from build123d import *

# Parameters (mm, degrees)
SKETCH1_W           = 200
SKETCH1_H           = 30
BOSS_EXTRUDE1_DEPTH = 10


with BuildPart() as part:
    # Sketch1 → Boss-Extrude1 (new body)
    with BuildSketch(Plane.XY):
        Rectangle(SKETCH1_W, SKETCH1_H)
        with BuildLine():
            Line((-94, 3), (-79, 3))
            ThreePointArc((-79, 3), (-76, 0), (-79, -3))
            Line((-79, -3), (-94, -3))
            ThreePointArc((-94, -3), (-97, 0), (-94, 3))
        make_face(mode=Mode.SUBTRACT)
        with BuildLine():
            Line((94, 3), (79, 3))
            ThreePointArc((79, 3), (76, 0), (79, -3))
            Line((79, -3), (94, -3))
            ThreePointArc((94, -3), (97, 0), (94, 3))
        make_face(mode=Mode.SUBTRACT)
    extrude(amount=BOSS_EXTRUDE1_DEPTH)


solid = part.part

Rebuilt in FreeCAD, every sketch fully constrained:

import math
import FreeCAD as App
import Part
import Sketcher
from FreeCAD import Vector
Q = App.Units.Quantity

doc = App.newDocument("Part")
body = doc.addObject("PartDesign::Body", "Body")

sketch1 = doc.addObject("Sketcher::SketchObject", "Sketch")
body.addObject(sketch1)
sketch1.AttachmentSupport = (doc.XY_Plane, [""])
sketch1.MapMode = "FlatFace"
sketch1.addGeometry(Part.LineSegment(Vector(-100, 15, 0), Vector(-100, -15, 0)), False)
sketch1.addGeometry(Part.LineSegment(Vector(-100, -15, 0), Vector(100, -15, 0)), False)
sketch1.addGeometry(Part.LineSegment(Vector(100, -15, 0), Vector(100, 15, 0)), False)
sketch1.addGeometry(Part.LineSegment(Vector(100, 15, 0), Vector(-100, 15, 0)), False)
sketch1.addGeometry(Part.ArcOfCircle(Part.Circle(Vector(-94, 0, 0), Vector(0, 0, 1), 3), math.radians(90), math.radians(270)), False)
sketch1.addGeometry(Part.LineSegment(Vector(-94, 3, 0), Vector(-79, 3, 0)), False)
sketch1.addGeometry(Part.ArcOfCircle(Part.Circle(Vector(-79, 0, 0), Vector(0, 0, 1), 3), math.radians(-90), math.radians(90)), False)
sketch1.addGeometry(Part.LineSegment(Vector(-79, -3, 0), Vector(-94, -3, 0)), False)
sketch1.addGeometry(Part.LineSegment(Vector(79, 3, 0), Vector(94, 3, 0)), False)
sketch1.addGeometry(Part.ArcOfCircle(Part.Circle(Vector(94, 0, 0), Vector(0, 0, 1), 3), math.radians(-90), math.radians(90)), False)
sketch1.addGeometry(Part.LineSegment(Vector(94, -3, 0), Vector(79, -3, 0)), False)
sketch1.addGeometry(Part.ArcOfCircle(Part.Circle(Vector(79, 0, 0), Vector(0, 0, 1), 3), math.radians(90), math.radians(270)), False)
sketch1.addConstraint(Sketcher.Constraint("Coincident", 0, 2, 1, 1))
sketch1.addConstraint(Sketcher.Constraint("Coincident", 1, 2, 2, 1))
sketch1.addConstraint(Sketcher.Constraint("Coincident", 2, 2, 3, 1))
sketch1.addConstraint(Sketcher.Constraint("Coincident", 3, 2, 0, 1))
sketch1.addConstraint(Sketcher.Constraint("Tangent", 4, 1, 5, 1))
sketch1.addConstraint(Sketcher.Constraint("Tangent", 5, 2, 6, 2))
sketch1.addConstraint(Sketcher.Constraint("Tangent", 6, 1, 7, 1))
sketch1.addConstraint(Sketcher.Constraint("Tangent", 7, 2, 4, 2))
sketch1.addConstraint(Sketcher.Constraint("Tangent", 8, 2, 9, 2))
sketch1.addConstraint(Sketcher.Constraint("Tangent", 9, 1, 10, 1))
sketch1.addConstraint(Sketcher.Constraint("Tangent", 10, 2, 11, 2))
sketch1.addConstraint(Sketcher.Constraint("Tangent", 11, 1, 8, 1))
sketch1.addConstraint(Sketcher.Constraint("Vertical", 0))
sketch1.addConstraint(Sketcher.Constraint("Horizontal", 1))
sketch1.addConstraint(Sketcher.Constraint("Vertical", 2))
sketch1.addConstraint(Sketcher.Constraint("Horizontal", 3))
sketch1.addConstraint(Sketcher.Constraint("Horizontal", 5))
sketch1.addConstraint(Sketcher.Constraint("Horizontal", 7))
sketch1.addConstraint(Sketcher.Constraint("Horizontal", 8))
sketch1.addConstraint(Sketcher.Constraint("Horizontal", 10))
sketch1.addConstraint(Sketcher.Constraint("Equal", 6, 9))
sketch1.addConstraint(Sketcher.Constraint("Symmetric", 4, 3, 9, 3, -1, 1))
sketch1.addConstraint(Sketcher.Constraint("Symmetric", 0, 2, 2, 2, -1, 1))
sketch1.addConstraint(Sketcher.Constraint("Symmetric", 6, 3, 11, 3, -2))
sketch1.addConstraint(Sketcher.Constraint("Radius", 4, Q("3 mm")))
sketch1.addConstraint(Sketcher.Constraint("DistanceX", 1, 1, 1, 2, Q("200 mm")))
sketch1.addConstraint(Sketcher.Constraint("DistanceX", 5, 1, 5, 2, Q("15 mm")))
sketch1.addConstraint(Sketcher.Constraint("DistanceY", 0, 2, 0, 1, Q("30 mm")))
sketch1.addConstraint(Sketcher.Constraint("DistanceX", 4, 3, -1, 1, Q("94 mm")))
pad1 = doc.addObject("PartDesign::Pad", "Pad")
body.addObject(pad1)
pad1.Profile = sketch1
pad1.Length = 10

doc.recompute()
